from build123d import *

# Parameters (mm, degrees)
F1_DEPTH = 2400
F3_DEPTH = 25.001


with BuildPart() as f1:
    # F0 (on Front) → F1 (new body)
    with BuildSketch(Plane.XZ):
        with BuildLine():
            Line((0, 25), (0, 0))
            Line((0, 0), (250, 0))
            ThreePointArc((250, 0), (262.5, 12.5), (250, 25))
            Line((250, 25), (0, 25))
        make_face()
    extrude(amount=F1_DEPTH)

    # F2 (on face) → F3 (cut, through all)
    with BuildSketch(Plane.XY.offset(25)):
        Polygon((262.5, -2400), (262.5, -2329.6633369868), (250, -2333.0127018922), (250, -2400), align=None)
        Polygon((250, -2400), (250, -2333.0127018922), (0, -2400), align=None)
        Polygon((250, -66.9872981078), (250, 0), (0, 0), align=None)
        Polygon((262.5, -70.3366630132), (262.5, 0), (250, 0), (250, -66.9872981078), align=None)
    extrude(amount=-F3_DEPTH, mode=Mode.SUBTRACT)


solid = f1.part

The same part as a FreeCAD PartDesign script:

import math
import FreeCAD as App
import Part
import Sketcher
from FreeCAD import Vector
Q = App.Units.Quantity


def add_polygon(sketch, points):
    """Adds a closed chain of lines whose ends are joined by coincident constraints."""
    first, n = sketch.GeometryCount, len(points)
    for a, b in zip(points, points[1:] + points[:1]):
        sketch.addGeometry(Part.LineSegment(App.Vector(*a, 0), App.Vector(*b, 0)), False)
    for i in range(n):
        sketch.addConstraint(Sketcher.Constraint("Coincident", first + i, 2, first + (i + 1) % n, 1))

doc = App.newDocument("Part")
body = doc.addObject("PartDesign::Body", "Body")

# Sketch on XZ plane
sketch1 = body.newObject("Sketcher::SketchObject", "Sketch")
sketch1.AttachmentSupport = (doc.getObject("XZ_Plane"), [""])
sketch1.MapMode = "FlatFace"
sketch1.addGeometry([
    Part.LineSegment(Vector(0, 25, 0), Vector(0, 0, 0)),
    Part.LineSegment(Vector(0, 0, 0), Vector(250, 0, 0)),
    Part.ArcOfCircle(Part.Circle(Vector(250, 12, 0), Vector(0, 0, 1), 12), math.radians(-90), math.radians(90)),
    Part.LineSegment(Vector(250, 25, 0), Vector(0, 25, 0)),
], False)
sketch1.addConstraint([
    Sketcher.Constraint("Coincident", 0, 2, 1, 1),
    Sketcher.Constraint("Tangent", 1, 2, 2, 1),
    Sketcher.Constraint("Tangent", 2, 2, 3, 1),
    Sketcher.Constraint("Coincident", 3, 2, 0, 1),
    Sketcher.Constraint("Vertical", 0),
    Sketcher.Constraint("Horizontal", 1),
    Sketcher.Constraint("Horizontal", 3),
    Sketcher.Constraint("Coincident", 0, 2, -1, 1),
    Sketcher.Constraint("Radius", 2, Q("12.5 mm")),
    Sketcher.Constraint("DistanceX", 1, 1, 1, 2, Q("250 mm")),
])
pad1 = body.newObject("PartDesign::Pad", "Pad")
pad1.Profile = sketch1
pad1.Length = 2400

# Sketch on XY plane
sketch2 = body.newObject("Sketcher::SketchObject", "Sketch001")
sketch2.AttachmentSupport = (doc.getObject("XY_Plane"), [""])
sketch2.MapMode = "FlatFace"
sketch2.AttachmentOffset = App.Placement(Vector(0, 0, 25), App.Rotation())
add_polygon(sketch2, [(262, -2400), (262, -2330), (0, -2400)])  # lines 0-2
add_polygon(sketch2, [(0, 0), (262, -70), (262, 0)])  # lines 3-5
sketch2.addConstraint([
    Sketcher.Constraint("Vertical", 0),
    Sketcher.Constraint("Horizontal", 2),
    Sketcher.Constraint("Vertical", 4),
    Sketcher.Constraint("Horizontal", 5),
    Sketcher.Constraint("Coincident", 5, 2, -1, 1),
    Sketcher.Constraint("PointOnObject", 1, 2, -2),
    Sketcher.Constraint("Vertical", 2, 2, 3, 2),
    Sketcher.Constraint("Equal", 0, 4),
    Sketcher.Constraint("Angle", 1, Q("-165 deg")),
    Sketcher.Constraint("DistanceX", 2, 1, 2, 2, Q("262.5 mm")),
    Sketcher.Constraint("DistanceY", 1, 2, -1, 1, Q("2400 mm")),
])
pocket1 = body.newObject("PartDesign::Pocket", "Pocket")
pocket1.Profile = sketch2
pocket1.Type = "ThroughAll"

doc.recompute()
